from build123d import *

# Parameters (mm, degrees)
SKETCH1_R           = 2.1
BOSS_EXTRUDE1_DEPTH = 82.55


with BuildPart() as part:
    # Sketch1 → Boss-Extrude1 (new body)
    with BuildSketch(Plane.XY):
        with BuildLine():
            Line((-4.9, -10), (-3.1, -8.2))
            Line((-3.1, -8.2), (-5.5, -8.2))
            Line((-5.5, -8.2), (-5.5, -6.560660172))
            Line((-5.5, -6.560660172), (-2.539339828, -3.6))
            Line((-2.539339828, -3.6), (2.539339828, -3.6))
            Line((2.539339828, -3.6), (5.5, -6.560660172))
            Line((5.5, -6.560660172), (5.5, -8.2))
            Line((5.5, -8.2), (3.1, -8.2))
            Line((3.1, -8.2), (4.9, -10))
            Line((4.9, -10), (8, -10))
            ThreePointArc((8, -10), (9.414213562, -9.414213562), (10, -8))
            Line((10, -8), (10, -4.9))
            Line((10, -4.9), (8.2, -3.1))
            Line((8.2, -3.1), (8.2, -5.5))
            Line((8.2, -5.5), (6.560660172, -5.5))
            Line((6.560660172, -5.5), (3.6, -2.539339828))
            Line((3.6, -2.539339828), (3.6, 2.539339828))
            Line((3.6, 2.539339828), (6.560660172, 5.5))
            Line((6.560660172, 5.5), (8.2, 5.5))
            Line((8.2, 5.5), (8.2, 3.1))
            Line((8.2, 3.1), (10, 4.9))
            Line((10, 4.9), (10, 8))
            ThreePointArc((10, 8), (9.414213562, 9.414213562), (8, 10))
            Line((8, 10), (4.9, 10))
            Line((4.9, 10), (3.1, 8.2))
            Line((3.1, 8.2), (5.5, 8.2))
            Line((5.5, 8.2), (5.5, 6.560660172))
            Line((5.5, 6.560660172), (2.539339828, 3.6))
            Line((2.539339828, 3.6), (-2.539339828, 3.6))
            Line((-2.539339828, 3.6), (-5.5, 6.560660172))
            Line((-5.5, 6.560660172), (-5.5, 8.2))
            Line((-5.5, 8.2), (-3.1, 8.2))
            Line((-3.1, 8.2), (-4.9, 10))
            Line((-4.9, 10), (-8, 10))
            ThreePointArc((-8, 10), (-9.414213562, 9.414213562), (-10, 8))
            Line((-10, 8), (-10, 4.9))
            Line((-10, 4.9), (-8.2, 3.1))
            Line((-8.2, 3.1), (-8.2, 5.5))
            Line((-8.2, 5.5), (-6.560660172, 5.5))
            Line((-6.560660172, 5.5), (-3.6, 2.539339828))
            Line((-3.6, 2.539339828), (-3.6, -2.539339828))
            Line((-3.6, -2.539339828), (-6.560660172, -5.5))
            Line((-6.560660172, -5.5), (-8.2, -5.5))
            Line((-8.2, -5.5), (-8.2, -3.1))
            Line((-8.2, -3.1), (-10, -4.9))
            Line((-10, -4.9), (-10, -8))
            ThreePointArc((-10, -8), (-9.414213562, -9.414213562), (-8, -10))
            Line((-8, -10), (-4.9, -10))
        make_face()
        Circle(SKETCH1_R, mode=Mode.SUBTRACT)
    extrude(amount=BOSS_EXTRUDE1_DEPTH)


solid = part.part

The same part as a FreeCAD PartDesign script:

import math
import FreeCAD as App
import Part
import Sketcher

V = App.Vector

doc = App.newDocument("Part")
params = doc.addObject("Spreadsheet::Sheet", "Params")
for row, (alias, value) in enumerate([
    ("sketch1_radius", "2 mm"),
    ("sketch1_diameter", "4.2 mm"),
    ("sketch1_width", "2.4 mm"),
    ("sketch1_width2", "3.1 mm"),
    ("pad1_length", "82.55 mm"),
], start=1):
    params.set(f"A{row}", alias)
    params.set(f"B{row}", "=" + value)
    params.setAlias(f"B{row}", alias)

body = doc.addObject("PartDesign::Body", "Body")

sketch1 = body.newObject("Sketcher::SketchObject", "Sketch")
sketch1.AttachmentSupport = (doc.getObject("XY_Plane"), [""])
sketch1.MapMode = "FlatFace"
sketch1.addGeometry([
    Part.LineSegment(V(-4.9, -10, 0), V(-3.1, -8.2, 0)),
    Part.LineSegment(V(-3.1, -8.2, 0), V(-5.5, -8.2, 0)),
    Part.LineSegment(V(-5.5, -8.2, 0), V(-5.5, -6.6, 0)),
    Part.LineSegment(V(-5.5, -6.6, 0), V(-2.5, -3.6, 0)),
    Part.LineSegment(V(-2.5, -3.6, 0), V(2.5, -3.6, 0)),
    Part.LineSegment(V(2.5, -3.6, 0), V(5.5, -6.6, 0)),
    Part.LineSegment(V(5.5, -6.6, 0), V(5.5, -8.2, 0)),
    Part.LineSegment(V(5.5, -8.2, 0), V(3.1, -8.2, 0)),
    Part.LineSegment(V(3.1, -8.2, 0), V(4.9, -10, 0)),
    Part.LineSegment(V(4.9, -10, 0), V(8, -10, 0)),
    Part.ArcOfCircle(Part.Circle(V(8, -8, 0), V(0, 0, 1), 2), math.radians(-90), math.radians(0)),
    Part.LineSegment(V(10, -8, 0), V(10, -4.9, 0)),
    Part.LineSegment(V(10, -4.9, 0), V(8.2, -3.1, 0)),
    Part.LineSegment(V(8.2, -3.1, 0), V(8.2, -5.5, 0)),
    Part.LineSegment(V(8.2, -5.5, 0), V(6.6, -5.5, 0)),
    Part.LineSegment(V(6.6, -5.5, 0), V(3.6, -2.5, 0)),
    Part.LineSegment(V(3.6, -2.5, 0), V(3.6, 2.5, 0)),
    Part.LineSegment(V(3.6, 2.5, 0), V(6.6, 5.5, 0)),
    Part.LineSegment(V(6.6, 5.5, 0), V(8.2, 5.5, 0)),
    Part.LineSegment(V(8.2, 5.5, 0), V(8.2, 3.1, 0)),
    Part.LineSegment(V(8.2, 3.1, 0), V(10, 4.9, 0)),
    Part.LineSegment(V(10, 4.9, 0), V(10, 8, 0)),
    Part.ArcOfCircle(Part.Circle(V(8, 8, 0), V(0, 0, 1), 2), math.radians(0), math.radians(90)),
    Part.LineSegment(V(8, 10, 0), V(4.9, 10, 0)),
    Part.LineSegment(V(4.9, 10, 0), V(3.1, 8.2, 0)),
    Part.LineSegment(V(3.1, 8.2, 0), V(5.5, 8.2, 0)),
    Part.LineSegment(V(5.5, 8.2, 0), V(5.5, 6.6, 0)),
    Part.LineSegment(V(5.5, 6.6, 0), V(2.5, 3.6, 0)),
    Part.LineSegment(V(2.5, 3.6, 0), V(-2.5, 3.6, 0)),
    Part.LineSegment(V(-2.5, 3.6, 0), V(-5.5, 6.6, 0)),
    Part.LineSegment(V(-5.5, 6.6, 0), V(-5.5, 8.2, 0)),
    Part.LineSegment(V(-5.5, 8.2, 0), V(-3.1, 8.2, 0)),
    Part.LineSegment(V(-3.1, 8.2, 0), V(-4.9, 10, 0)),
    Part.LineSegment(V(-4.9, 10, 0), V(-8, 10, 0)),
    Part.ArcOfCircle(Part.Circle(V(-8, 8, 0), V(0, 0, 1), 2), math.radians(90), math.radians(180)),
    Part.LineSegment(V(-10, 8, 0), V(-10, 4.9, 0)),
    Part.LineSegment(V(-10, 4.9, 0), V(-8.2, 3.1, 0)),
    Part.LineSegment(V(-8.2, 3.1, 0), V(-8.2, 5.5, 0)),
    Part.LineSegment(V(-8.2, 5.5, 0), V(-6.6, 5.5, 0)),
    Part.LineSegment(V(-6.6, 5.5, 0), V(-3.6, 2.5, 0)),
    Part.LineSegment(V(-3.6, 2.5, 0), V(-3.6, -2.5, 0)),
    Part.LineSegment(V(-3.6, -2.5, 0), V(-6.6, -5.5, 0)),
    Part.LineSegment(V(-6.6, -5.5, 0), V(-8.2, -5.5, 0)),
    Part.LineSegment(V(-8.2, -5.5, 0), V(-8.2, -3.1, 0)),
    Part.LineSegment(V(-8.2, -3.1, 0), V(-10, -4.9, 0)),
    Part.LineSegment(V(-10, -4.9, 0), V(-10, -8, 0)),
    Part.ArcOfCircle(Part.Circle(V(-8, -8, 0), V(0, 0, 1), 2), math.radians(-180), math.radians(-90)),
    Part.LineSegment(V(-8, -10, 0), V(-4.9, -10, 0)),
    Part.Circle(V(0, 0, 0), V(0, 0, 1), 2.1),
], False)
sketch1.addConstraint([
    Sketcher.Constraint("Coincident", 0, 2, 1, 1),
    Sketcher.Constraint("Coincident", 1, 2, 2, 1),
    Sketcher.Constraint("Coincident", 2, 2, 3, 1),
    Sketcher.Constraint("Coincident", 3, 2, 4, 1),
    Sketcher.Constraint("Coincident", 4, 2, 5, 1),
    Sketcher.Constraint("Coincident", 5, 2, 6, 1),
    Sketcher.Constraint("Coincident", 6, 2, 7, 1),
    Sketcher.Constraint("Coincident", 7, 2, 8, 1),
    Sketcher.Constraint("Coincident", 8, 2, 9, 1),
    Sketcher.Constraint("Tangent", 9, 2, 10, 1),
    Sketcher.Constraint("Tangent", 10, 2, 11, 1),
    Sketcher.Constraint("Coincident", 11, 2, 12, 1),
    Sketcher.Constraint("Coincident", 12, 2, 13, 1),
    Sketcher.Constraint("Coincident", 13, 2, 14, 1),
    Sketcher.Constraint("Coincident", 14, 2, 15, 1),
    Sketcher.Constraint("Coincident", 15, 2, 16, 1),
    Sketcher.Constraint("Coincident", 16, 2, 17, 1),
    Sketcher.Constraint("Coincident", 17, 2, 18, 1),
    Sketcher.Constraint("Coincident", 18, 2, 19, 1),
    Sketcher.Constraint("Coincident", 19, 2, 20, 1),
    Sketcher.Constraint("Coincident", 20, 2, 21, 1),
    Sketcher.Constraint("Tangent", 21, 2, 22, 1),
    Sketcher.Constraint("Tangent", 22, 2, 23, 1),
    Sketcher.Constraint("Coincident", 23, 2, 24, 1),
    Sketcher.Constraint("Coincident", 24, 2, 25, 1),
    Sketcher.Constraint("Coincident", 25, 2, 26, 1),
    Sketcher.Constraint("Coincident", 26, 2, 27, 1),
    Sketcher.Constraint("Coincident", 27, 2, 28, 1),
    Sketcher.Constraint("Coincident", 28, 2, 29, 1),
    Sketcher.Constraint("Coincident", 29, 2, 30, 1),
    Sketcher.Constraint("Coincident", 30, 2, 31, 1),
    Sketcher.Constraint("Coincident", 31, 2, 32, 1),
    Sketcher.Constraint("Coincident", 32, 2, 33, 1),
    Sketcher.Constraint("Tangent", 33, 2, 34, 1),
    Sketcher.Constraint("Tangent", 34, 2, 35, 1),
    Sketcher.Constraint("Coincident", 35, 2, 36, 1),
    Sketcher.Constraint("Coincident", 36, 2, 37, 1),
    Sketcher.Constraint("Coincident", 37, 2, 38, 1),
    Sketcher.Constraint("Coincident", 38, 2, 39, 1),
    Sketcher.Constraint("Coincident", 39, 2, 40, 1),
    Sketcher.Constraint("Coincident", 40, 2, 41, 1),
    Sketcher.Constraint("Coincident", 41, 2, 42, 1),
    Sketcher.Constraint("Coincident", 42, 2, 43, 1),
    Sketcher.Constraint("Coincident", 43, 2, 44, 1),
    Sketcher.Constraint("Coincident", 44, 2, 45, 1),
    Sketcher.Constraint("Tangent", 45, 2, 46, 1),
    Sketcher.Constraint("Tangent", 46, 2, 47, 1),
    Sketcher.Constraint("Coincident", 47, 2, 0, 1),
    Sketcher.Constraint("Horizontal", 1),
    Sketcher.Constraint("Vertical", 2),
    Sketcher.Constraint("Horizontal", 4),
    Sketcher.Constraint("Vertical", 6),
    Sketcher.Constraint("Horizontal", 7),
    Sketcher.Constraint("Horizontal", 9),
    Sketcher.Constraint("Vertical", 11),
    Sketcher.Constraint("Vertical", 13),
    Sketcher.Constraint("Horizontal", 14),
    Sketcher.Constraint("Vertical", 16),
    Sketcher.Constraint("Horizontal", 18),
    Sketcher.Constraint("Vertical", 19),
    Sketcher.Constraint("Vertical", 21),
    Sketcher.Constraint("Horizontal", 23),
    Sketcher.Constraint("Horizontal", 25),
    Sketcher.Constraint("Vertical", 26),
    Sketcher.Constraint("Horizontal", 28),
    Sketcher.Constraint("Vertical", 30),
    Sketcher.Constraint("Horizontal", 31),
    Sketcher.Constraint("Horizontal", 33),
    Sketcher.Constraint("Vertical", 35),
    Sketcher.Constraint("Vertical", 37),
    Sketcher.Constraint("Horizontal", 38),
    Sketcher.Constraint("Vertical", 40),
    Sketcher.Constraint("Horizontal", 42),
    Sketcher.Constraint("Vertical", 43),
    Sketcher.Constraint("Vertical", 45),
    Sketcher.Constraint("Horizontal", 47),
    Sketcher.Constraint("Coincident", 48, 3, -1, 1),
    Sketcher.Constraint("Equal", 10, 22),
    Sketcher.Constraint("Equal", 22, 34),
    Sketcher.Constraint("Equal", 34, 46),
    Sketcher.Constraint("Symmetric", 10, 3, 34, 3, -1, 1),
    Sketcher.Constraint("Symmetric", 22, 3, 46, 3, -1, 1),
    Sketcher.Constraint("Symmetric", 0, 2, 24, 2, -1, 1),
    Sketcher.Constraint("Symmetric", 2, 2, 26, 2, -1, 1),
    Sketcher.Constraint("Symmetric", 3, 2, 27, 2, -1, 1),
    Sketcher.Constraint("Symmetric", 5, 2, 29, 2, -1, 1),
    Sketcher.Constraint("Symmetric", 7, 2, 31, 2, -1, 1),
    Sketcher.Constraint("Symmetric", 12, 2, 36, 2, -1, 1),
    Sketcher.Constraint("Symmetric", 14, 2, 38, 2, -1, 1),
    Sketcher.Constraint("Symmetric", 15, 2, 39, 2, -1, 1),
    Sketcher.Constraint("Symmetric", 17, 2, 41, 2, -1, 1),
    Sketcher.Constraint("Symmetric", 19, 2, 43, 2, -1, 1),
    Sketcher.Constraint("Symmetric", 22, 3, 34, 3, -2),
    Sketcher.Constraint("Symmetric", 2, 2, 5, 2, -2),
    Sketcher.Constraint("Symmetric", 0, 2, 7, 2, -2),
    Sketcher.Constraint("Symmetric", 19, 2, 36, 2, -2),
    Sketcher.Constraint("Symmetric", 17, 2, 38, 2, -2),
    Sketcher.Constraint("Parallel", 0, 3),
    Sketcher.Constraint("Perpendicular", 3, 5),
    Sketcher.Constraint("Parallel", 5, 8),
    Sketcher.Constraint("Parallel", 8, 12),
    Sketcher.Constraint("Parallel", 12, 15),
    Sketcher.Constraint("Perpendicular", 15, 17),
    Sketcher.Constraint("Parallel", 17, 20),
    Sketcher.Constraint("Parallel", 20, 24),
    Sketcher.Constraint("Perpendicular", 27, 29),
    Sketcher.Constraint("Parallel", 29, 32),
    Sketcher.Constraint("Parallel", 32, 36),
    Sketcher.Constraint("Perpendicular", 39, 41),
    Sketcher.Constraint("Parallel", 41, 44),
    Sketcher.Constraint("Horizontal", 20, 2, 35, 2),
    Sketcher.Constraint("Equal", 42, 2),
    Sketcher.Constraint("Equal", 47, 11),
    Sketcher.Constraint("Equal", 31, 13),
    Sketcher.Constraint("Equal", 28, 16),
    Sketcher.Constraint("Equal", 8, 12),
    Sketcher.Constraint("Equal", 5, 15),
    Sketcher.Constraint("Radius", 10, 2.0),
    Sketcher.Constraint("Diameter", 48, 4.2),
    Sketcher.Constraint("DistanceX", 1, 2, 1, 1, 2.4),
    Sketcher.Constraint("DistanceX", 9, 1, 9, 2, 3.1),
    Sketcher.Constraint("DistanceX", -1, 1, 10, 3, 8.0),
    Sketcher.Constraint("DistanceX", 0, 2, -1, 1, 3.1),
    Sketcher.Constraint("DistanceY", 3, 2, -1, 1, 3.6),
    Sketcher.Constraint("DistanceX", 4, 1, 4, 2, 5.07868),
])
sketch1.setExpression("Constraints[117]", "Params.sketch1_radius")
sketch1.setExpression("Constraints[118]", "Params.sketch1_diameter")
sketch1.setExpression("Constraints[119]", "Params.sketch1_width")
sketch1.setExpression("Constraints[120]", "Params.sketch1_width2")
pad1 = body.newObject("PartDesign::Pad", "Pad")
pad1.Profile = sketch1
pad1.setExpression("Length", "Params.pad1_length")

doc.recompute()
